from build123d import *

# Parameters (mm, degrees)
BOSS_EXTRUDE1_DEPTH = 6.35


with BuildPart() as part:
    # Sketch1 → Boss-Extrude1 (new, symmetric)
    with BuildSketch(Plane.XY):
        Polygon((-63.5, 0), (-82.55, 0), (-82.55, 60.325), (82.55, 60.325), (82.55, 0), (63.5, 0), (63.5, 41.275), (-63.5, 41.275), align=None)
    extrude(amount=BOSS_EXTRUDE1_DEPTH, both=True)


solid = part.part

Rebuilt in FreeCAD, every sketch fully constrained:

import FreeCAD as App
import Part
import Sketcher
Q = App.Units.Quantity


def add_polygon(sketch, points):
    """Adds a closed chain of lines whose ends are joined by coincident constraints."""
    first, n = sketch.GeometryCount, len(points)
    for a, b in zip(points, points[1:] + points[:1]):
        sketch.addGeometry(Part.LineSegment(App.Vector(*a, 0), App.Vector(*b, 0)), False)
    for i in range(n):
        sketch.addConstraint(Sketcher.Constraint("Coincident", first + i, 2, first + (i + 1) % n, 1))

doc = App.newDocument("Part")
params = doc.addObject("Spreadsheet::Sheet", "Params")
for row, (alias, value) in enumerate([
    ("sketch1_width", "5 in"),
    ("sketch1_width2", "6.5 in"),
    ("sketch1_height", "1.625 in"),
    ("sketch1_height2", "2.375 in"),
    ("pad1_length", "0.5 in"),
], start=1):
    params.set(f"A{row}", alias)
    params.set(f"B{row}", "=" + value)
    params.setAlias(f"B{row}", alias)

body = doc.addObject("PartDesign::Body", "Body")

# Sketch on XY plane
sketch1 = body.newObject("Sketcher::SketchObject", "Sketch")
sketch1.AttachmentSupport = (doc.getObject("XY_Plane"), [""])
sketch1.MapMode = "FlatFace"
add_polygon(sketch1, [(-83, 0), (-64, 0), (-64, 41), (64, 41), (64, 0), (83, 0), (83, 60), (-83, 60)])  # lines 0-7
sketch1.addConstraint([
    Sketcher.Constraint("Horizontal", 0),
    Sketcher.Constraint("Vertical", 1),
    Sketcher.Constraint("Horizontal", 2),
    Sketcher.Constraint("Vertical", 3),
    Sketcher.Constraint("Horizontal", 4),
    Sketcher.Constraint("Vertical", 5),
    Sketcher.Constraint("Horizontal", 6),
    Sketcher.Constraint("Vertical", 7),
    Sketcher.Constraint("Symmetric", 0, 2, 3, 2, -1, 1),
    Sketcher.Constraint("Symmetric", 4, 2, 7, 2, -2),
    Sketcher.Constraint("DistanceX", 2, 1, 2, 2, Q("5 in")),
    Sketcher.Constraint("DistanceX", 6, 2, 6, 1, Q("6.5 in")),
    Sketcher.Constraint("DistanceY", 1, 1, 1, 2, Q("1.625 in")),
    Sketcher.Constraint("DistanceY", 5, 1, 5, 2, Q("2.375 in")),
])
sketch1.setExpression("Constraints[18]", "Params.sketch1_width")
sketch1.setExpression("Constraints[19]", "Params.sketch1_width2")
sketch1.setExpression("Constraints[20]", "Params.sketch1_height")
sketch1.setExpression("Constraints[21]", "Params.sketch1_height2")
pad1 = body.newObject("PartDesign::Pad", "Pad")
pad1.Profile = sketch1
pad1.setExpression("Length", "Params.pad1_length")
pad1.Midplane = True

doc.recompute()
